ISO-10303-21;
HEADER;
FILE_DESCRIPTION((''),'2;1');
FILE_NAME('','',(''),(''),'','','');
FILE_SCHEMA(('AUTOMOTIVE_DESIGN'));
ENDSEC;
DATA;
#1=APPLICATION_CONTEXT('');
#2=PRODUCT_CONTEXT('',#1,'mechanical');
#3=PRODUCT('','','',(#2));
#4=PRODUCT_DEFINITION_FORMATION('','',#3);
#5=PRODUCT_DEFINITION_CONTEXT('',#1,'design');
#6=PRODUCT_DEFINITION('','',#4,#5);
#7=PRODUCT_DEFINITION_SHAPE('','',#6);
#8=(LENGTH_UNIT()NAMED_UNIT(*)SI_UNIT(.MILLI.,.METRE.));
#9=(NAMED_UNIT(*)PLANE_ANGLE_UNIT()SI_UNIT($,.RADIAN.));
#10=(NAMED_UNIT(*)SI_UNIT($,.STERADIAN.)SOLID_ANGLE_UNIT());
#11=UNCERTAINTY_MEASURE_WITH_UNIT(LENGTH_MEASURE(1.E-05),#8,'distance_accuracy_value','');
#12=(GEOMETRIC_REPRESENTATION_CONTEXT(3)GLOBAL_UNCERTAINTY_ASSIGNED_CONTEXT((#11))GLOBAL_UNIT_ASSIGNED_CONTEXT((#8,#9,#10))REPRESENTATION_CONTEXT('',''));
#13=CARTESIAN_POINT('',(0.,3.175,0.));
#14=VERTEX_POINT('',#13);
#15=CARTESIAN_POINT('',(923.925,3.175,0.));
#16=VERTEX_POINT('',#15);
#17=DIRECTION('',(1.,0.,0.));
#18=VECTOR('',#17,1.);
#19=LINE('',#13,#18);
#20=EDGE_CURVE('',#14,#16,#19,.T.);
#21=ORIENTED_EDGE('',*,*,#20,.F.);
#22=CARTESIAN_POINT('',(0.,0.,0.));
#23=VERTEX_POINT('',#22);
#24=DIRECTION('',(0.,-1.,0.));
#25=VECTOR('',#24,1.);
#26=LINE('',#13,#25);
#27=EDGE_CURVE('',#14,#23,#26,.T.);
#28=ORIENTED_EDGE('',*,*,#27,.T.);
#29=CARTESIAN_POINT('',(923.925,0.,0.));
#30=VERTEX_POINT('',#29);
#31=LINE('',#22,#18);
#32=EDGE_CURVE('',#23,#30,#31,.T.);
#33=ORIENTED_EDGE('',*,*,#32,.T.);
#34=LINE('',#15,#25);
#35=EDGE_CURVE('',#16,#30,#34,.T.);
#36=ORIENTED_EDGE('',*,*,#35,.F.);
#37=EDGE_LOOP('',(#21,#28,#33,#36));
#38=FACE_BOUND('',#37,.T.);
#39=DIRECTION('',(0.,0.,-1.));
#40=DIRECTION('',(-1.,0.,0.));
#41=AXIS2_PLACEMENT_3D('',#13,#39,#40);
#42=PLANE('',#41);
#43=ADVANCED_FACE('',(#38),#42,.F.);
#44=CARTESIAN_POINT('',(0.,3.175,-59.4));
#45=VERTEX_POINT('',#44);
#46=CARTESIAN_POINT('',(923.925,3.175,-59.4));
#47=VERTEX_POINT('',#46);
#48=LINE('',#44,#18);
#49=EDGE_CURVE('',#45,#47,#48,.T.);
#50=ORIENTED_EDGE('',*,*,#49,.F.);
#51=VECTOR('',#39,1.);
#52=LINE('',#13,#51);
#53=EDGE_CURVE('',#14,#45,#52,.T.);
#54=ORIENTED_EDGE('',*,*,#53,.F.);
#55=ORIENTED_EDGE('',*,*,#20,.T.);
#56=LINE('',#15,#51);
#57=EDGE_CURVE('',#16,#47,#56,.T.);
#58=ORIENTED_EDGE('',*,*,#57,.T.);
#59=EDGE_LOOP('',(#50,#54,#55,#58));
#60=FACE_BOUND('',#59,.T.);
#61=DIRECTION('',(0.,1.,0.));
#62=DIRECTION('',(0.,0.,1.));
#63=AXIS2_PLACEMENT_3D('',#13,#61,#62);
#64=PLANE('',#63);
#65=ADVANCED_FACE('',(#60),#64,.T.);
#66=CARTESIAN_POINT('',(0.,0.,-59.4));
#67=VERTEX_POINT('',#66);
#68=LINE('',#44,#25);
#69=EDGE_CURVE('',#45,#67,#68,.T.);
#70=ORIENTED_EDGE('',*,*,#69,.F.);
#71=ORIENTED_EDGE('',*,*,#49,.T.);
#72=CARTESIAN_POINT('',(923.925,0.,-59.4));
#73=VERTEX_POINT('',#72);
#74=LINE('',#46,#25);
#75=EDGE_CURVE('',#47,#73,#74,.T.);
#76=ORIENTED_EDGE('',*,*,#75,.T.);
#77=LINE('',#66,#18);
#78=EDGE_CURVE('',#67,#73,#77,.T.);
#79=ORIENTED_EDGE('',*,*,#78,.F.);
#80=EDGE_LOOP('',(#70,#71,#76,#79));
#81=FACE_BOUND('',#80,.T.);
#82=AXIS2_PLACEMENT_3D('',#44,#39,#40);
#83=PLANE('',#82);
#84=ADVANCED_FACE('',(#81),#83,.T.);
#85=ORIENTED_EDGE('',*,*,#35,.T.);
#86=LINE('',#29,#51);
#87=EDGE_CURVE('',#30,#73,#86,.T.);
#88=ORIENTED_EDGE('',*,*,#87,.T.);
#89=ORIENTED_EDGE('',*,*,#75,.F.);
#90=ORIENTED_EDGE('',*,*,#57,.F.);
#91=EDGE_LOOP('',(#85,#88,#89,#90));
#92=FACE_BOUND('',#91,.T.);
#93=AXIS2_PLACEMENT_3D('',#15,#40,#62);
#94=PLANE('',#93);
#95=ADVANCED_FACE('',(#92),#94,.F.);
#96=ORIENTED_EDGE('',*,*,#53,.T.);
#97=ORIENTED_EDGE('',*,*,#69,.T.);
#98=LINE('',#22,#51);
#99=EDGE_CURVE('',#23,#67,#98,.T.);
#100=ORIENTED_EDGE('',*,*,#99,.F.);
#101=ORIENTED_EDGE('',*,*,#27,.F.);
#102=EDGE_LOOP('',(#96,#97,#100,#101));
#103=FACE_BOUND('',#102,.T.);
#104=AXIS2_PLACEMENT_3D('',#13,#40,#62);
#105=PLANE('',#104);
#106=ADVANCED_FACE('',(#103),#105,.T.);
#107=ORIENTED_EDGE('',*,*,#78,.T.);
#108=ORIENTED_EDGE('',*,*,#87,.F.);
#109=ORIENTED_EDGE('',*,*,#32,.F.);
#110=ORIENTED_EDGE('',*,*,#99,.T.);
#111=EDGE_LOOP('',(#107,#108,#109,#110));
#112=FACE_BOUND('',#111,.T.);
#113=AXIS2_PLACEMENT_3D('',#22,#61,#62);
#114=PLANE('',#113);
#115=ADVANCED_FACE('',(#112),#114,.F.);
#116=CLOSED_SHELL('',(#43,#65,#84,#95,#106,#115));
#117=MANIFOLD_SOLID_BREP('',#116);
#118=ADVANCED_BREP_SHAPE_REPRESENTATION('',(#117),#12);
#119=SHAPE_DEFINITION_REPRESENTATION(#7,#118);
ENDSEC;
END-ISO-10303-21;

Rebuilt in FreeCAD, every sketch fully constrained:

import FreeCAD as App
import Part
import Sketcher
from FreeCAD import Vector
Q = App.Units.Quantity

doc = App.newDocument("Part")
body = doc.addObject("PartDesign::Body", "Body")

# Sketch on XZ plane
sketch1 = doc.addObject("Sketcher::SketchObject", "Sketch")
body.addObject(sketch1)
sketch1.AttachmentSupport = (doc.XZ_Plane, [""])
sketch1.MapMode = "FlatFace"
sketch1.addGeometry(Part.LineSegment(Vector(0, -59, 0), Vector(0, 0, 0)), False)
sketch1.addGeometry(Part.LineSegment(Vector(0, 0, 0), Vector(924, 0, 0)), False)
sketch1.addGeometry(Part.LineSegment(Vector(924, 0, 0), Vector(924, -59, 0)), False)
sketch1.addGeometry(Part.LineSegment(Vector(924, -59, 0), Vector(0, -59, 0)), False)
sketch1.addConstraint(Sketcher.Constraint("Coincident", 0, 2, 1, 1))
sketch1.addConstraint(Sketcher.Constraint("Coincident", 1, 2, 2, 1))
sketch1.addConstraint(Sketcher.Constraint("Coincident", 2, 2, 3, 1))
sketch1.addConstraint(Sketcher.Constraint("Coincident", 3, 2, 0, 1))
sketch1.addConstraint(Sketcher.Constraint("Vertical", 0))
sketch1.addConstraint(Sketcher.Constraint("Horizontal", 1))
sketch1.addConstraint(Sketcher.Constraint("Vertical", 2))
sketch1.addConstraint(Sketcher.Constraint("Horizontal", 3))
sketch1.addConstraint(Sketcher.Constraint("Coincident", 0, 2, -1, 1))
sketch1.addConstraint(Sketcher.Constraint("DistanceX", 1, 1, 1, 2, Q("36.375 in")))
sketch1.addConstraint(Sketcher.Constraint("DistanceY", 0, 1, 0, 2, 59.4))
pad1 = doc.addObject("PartDesign::Pad", "Pad")
body.addObject(pad1)
pad1.Profile = sketch1
pad1.Length = Q("0.125 in")
pad1.Reversed = True

doc.recompute()
